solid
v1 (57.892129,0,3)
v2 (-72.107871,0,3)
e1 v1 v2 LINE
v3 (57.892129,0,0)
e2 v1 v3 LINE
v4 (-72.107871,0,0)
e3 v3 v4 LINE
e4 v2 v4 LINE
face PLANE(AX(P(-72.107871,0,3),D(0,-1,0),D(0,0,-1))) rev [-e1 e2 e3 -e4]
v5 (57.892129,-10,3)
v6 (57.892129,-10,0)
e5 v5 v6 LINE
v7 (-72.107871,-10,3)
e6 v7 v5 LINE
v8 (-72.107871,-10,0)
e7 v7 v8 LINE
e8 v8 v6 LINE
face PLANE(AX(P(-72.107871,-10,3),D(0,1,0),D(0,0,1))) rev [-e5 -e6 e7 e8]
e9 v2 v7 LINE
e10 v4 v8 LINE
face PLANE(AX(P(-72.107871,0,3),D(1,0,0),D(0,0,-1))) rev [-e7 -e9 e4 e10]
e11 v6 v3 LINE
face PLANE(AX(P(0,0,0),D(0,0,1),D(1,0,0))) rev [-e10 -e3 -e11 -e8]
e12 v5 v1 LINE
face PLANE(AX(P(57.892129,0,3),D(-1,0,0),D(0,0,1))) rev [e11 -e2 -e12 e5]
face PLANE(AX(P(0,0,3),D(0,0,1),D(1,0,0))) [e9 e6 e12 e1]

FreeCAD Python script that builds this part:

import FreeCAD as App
import Part
import Sketcher

V = App.Vector

doc = App.newDocument("Part")
params = doc.addObject("Spreadsheet::Sheet", "Params")
for row, (alias, value) in enumerate([
    ("sketch1_width", "130 mm"),
    ("sketch1_height", "10 mm"),
    ("pad1_length", "3 mm"),
], start=1):
    params.set(f"A{row}", alias)
    params.set(f"B{row}", "=" + value)
    params.setAlias(f"B{row}", alias)

body = doc.addObject("PartDesign::Body", "Body")

# Sketch on XY plane
sketch1 = doc.addObject("Sketcher::SketchObject", "Sketch")
body.addObject(sketch1)
sketch1.AttachmentSupport = (doc.XY_Plane, [""])
sketch1.MapMode = "FlatFace"
sketch1.addGeometry([
    Part.LineSegment(V(-72, 0, 0), V(-72, -10, 0)),
    Part.LineSegment(V(-72, -10, 0), V(58, -10, 0)),
    Part.LineSegment(V(58, -10, 0), V(58, 0, 0)),
    Part.LineSegment(V(58, 0, 0), V(-72, 0, 0)),
], False)
sketch1.addConstraint([
    Sketcher.Constraint("Coincident", 0, 2, 1, 1),
    Sketcher.Constraint("Coincident", 1, 2, 2, 1),
    Sketcher.Constraint("Coincident", 2, 2, 3, 1),
    Sketcher.Constraint("Coincident", 3, 2, 0, 1),
    Sketcher.Constraint("Vertical", 0),
    Sketcher.Constraint("Horizontal", 1),
    Sketcher.Constraint("Vertical", 2),
    Sketcher.Constraint("Horizontal", 3),
    Sketcher.Constraint("PointOnObject", 2, 2, -1),
    Sketcher.Constraint("DistanceX", 1, 1, 1, 2, 130.0),
    Sketcher.Constraint("DistanceY", 0, 2, 0, 1, 10.0),
    Sketcher.Constraint("DistanceX", 0, 2, -1, 1, 72.107871),
])
sketch1.setExpression("Constraints[9]", "Params.sketch1_width")
sketch1.setExpression("Constraints[10]", "Params.sketch1_height")
pad1 = doc.addObject("PartDesign::Pad", "Pad")
body.addObject(pad1)
pad1.Profile = sketch1
pad1.setExpression("Length", "Params.pad1_length")

doc.recompute()
